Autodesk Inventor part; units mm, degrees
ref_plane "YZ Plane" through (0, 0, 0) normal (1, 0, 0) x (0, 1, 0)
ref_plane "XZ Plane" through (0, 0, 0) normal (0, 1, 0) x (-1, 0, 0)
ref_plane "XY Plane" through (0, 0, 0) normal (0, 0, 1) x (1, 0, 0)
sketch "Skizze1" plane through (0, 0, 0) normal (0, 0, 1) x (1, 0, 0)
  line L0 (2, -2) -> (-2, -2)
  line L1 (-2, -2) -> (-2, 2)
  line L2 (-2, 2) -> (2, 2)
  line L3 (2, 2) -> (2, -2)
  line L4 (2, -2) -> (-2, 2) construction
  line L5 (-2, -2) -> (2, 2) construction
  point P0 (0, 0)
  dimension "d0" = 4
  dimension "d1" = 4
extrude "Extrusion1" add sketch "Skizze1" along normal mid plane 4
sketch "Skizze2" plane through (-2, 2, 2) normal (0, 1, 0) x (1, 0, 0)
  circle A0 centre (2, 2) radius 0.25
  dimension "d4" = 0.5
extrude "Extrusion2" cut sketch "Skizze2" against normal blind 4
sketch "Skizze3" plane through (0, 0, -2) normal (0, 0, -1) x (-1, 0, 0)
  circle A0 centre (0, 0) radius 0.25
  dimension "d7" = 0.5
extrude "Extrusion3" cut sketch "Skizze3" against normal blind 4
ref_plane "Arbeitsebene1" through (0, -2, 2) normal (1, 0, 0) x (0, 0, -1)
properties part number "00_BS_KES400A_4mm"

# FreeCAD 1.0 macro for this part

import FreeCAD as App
import Part
import Sketcher
from FreeCAD import Vector
Q = App.Units.Quantity


def add_polygon(sketch, points):
    """Adds a closed chain of lines whose ends are joined by coincident constraints."""
    first, n = sketch.GeometryCount, len(points)
    for a, b in zip(points, points[1:] + points[:1]):
        sketch.addGeometry(Part.LineSegment(App.Vector(*a, 0), App.Vector(*b, 0)), False)
    for i in range(n):
        sketch.addConstraint(Sketcher.Constraint("Coincident", first + i, 2, first + (i + 1) % n, 1))

doc = App.newDocument("Part")
body = doc.addObject("PartDesign::Body", "Body")

# Sketch on XY plane
sketch1 = body.newObject("Sketcher::SketchObject", "Sketch")
sketch1.AttachmentSupport = (doc.getObject("XY_Plane"), [""])
sketch1.MapMode = "FlatFace"
add_polygon(sketch1, [(-2, -2), (2, -2), (2, 2), (-2, 2)])  # lines 0-3
sketch1.addConstraint([
    Sketcher.Constraint("Horizontal", 0),
    Sketcher.Constraint("Vertical", 1),
    Sketcher.Constraint("Horizontal", 2),
    Sketcher.Constraint("Vertical", 3),
    Sketcher.Constraint("Symmetric", 0, 2, 2, 2, -1, 1),
    Sketcher.Constraint("Equal", 2, 1),
    Sketcher.Constraint("DistanceX", 0, 1, 0, 2, Q("4 mm")),
])
pad1 = body.newObject("PartDesign::Pad", "Pad")
pad1.Profile = sketch1
pad1.Length = 4
pad1.Midplane = True

# Sketch on XZ plane
sketch2 = body.newObject("Sketcher::SketchObject", "Sketch001")
sketch2.AttachmentSupport = (doc.getObject("XZ_Plane"), [""])
sketch2.MapMode = "FlatFace"
sketch2.AttachmentOffset = App.Placement(Vector(0, 0, -2), App.Rotation())
sketch2.addGeometry(Part.Circle(Vector(0, 0, 0), Vector(0, 0, 1), 0.25), False)
sketch2.addConstraint([
    Sketcher.Constraint("Coincident", 0, 3, -1, 1),
    Sketcher.Constraint("Diameter", 0, Q("0.5 mm")),
])
pocket1 = body.newObject("PartDesign::Pocket", "Pocket")
pocket1.Profile = sketch2
pocket1.Length = 4
pocket1.Reversed = True

# Sketch on XY plane
sketch3 = body.newObject("Sketcher::SketchObject", "Sketch002")
sketch3.AttachmentSupport = (doc.getObject("XY_Plane"), [""])
sketch3.MapMode = "FlatFace"
sketch3.AttachmentOffset = App.Placement(Vector(0, 0, -2), App.Rotation())
sketch3.addGeometry(Part.Circle(Vector(0, 0, 0), Vector(0, 0, 1), 0.25), False)
sketch3.addConstraint([
    Sketcher.Constraint("Coincident", 0, 3, -1, 1),
    Sketcher.Constraint("Diameter", 0, Q("0.5 mm")),
])
pocket2 = body.newObject("PartDesign::Pocket", "Pocket001")
pocket2.Profile = sketch3
pocket2.Length = 4
pocket2.Reversed = True

doc.recompute()
